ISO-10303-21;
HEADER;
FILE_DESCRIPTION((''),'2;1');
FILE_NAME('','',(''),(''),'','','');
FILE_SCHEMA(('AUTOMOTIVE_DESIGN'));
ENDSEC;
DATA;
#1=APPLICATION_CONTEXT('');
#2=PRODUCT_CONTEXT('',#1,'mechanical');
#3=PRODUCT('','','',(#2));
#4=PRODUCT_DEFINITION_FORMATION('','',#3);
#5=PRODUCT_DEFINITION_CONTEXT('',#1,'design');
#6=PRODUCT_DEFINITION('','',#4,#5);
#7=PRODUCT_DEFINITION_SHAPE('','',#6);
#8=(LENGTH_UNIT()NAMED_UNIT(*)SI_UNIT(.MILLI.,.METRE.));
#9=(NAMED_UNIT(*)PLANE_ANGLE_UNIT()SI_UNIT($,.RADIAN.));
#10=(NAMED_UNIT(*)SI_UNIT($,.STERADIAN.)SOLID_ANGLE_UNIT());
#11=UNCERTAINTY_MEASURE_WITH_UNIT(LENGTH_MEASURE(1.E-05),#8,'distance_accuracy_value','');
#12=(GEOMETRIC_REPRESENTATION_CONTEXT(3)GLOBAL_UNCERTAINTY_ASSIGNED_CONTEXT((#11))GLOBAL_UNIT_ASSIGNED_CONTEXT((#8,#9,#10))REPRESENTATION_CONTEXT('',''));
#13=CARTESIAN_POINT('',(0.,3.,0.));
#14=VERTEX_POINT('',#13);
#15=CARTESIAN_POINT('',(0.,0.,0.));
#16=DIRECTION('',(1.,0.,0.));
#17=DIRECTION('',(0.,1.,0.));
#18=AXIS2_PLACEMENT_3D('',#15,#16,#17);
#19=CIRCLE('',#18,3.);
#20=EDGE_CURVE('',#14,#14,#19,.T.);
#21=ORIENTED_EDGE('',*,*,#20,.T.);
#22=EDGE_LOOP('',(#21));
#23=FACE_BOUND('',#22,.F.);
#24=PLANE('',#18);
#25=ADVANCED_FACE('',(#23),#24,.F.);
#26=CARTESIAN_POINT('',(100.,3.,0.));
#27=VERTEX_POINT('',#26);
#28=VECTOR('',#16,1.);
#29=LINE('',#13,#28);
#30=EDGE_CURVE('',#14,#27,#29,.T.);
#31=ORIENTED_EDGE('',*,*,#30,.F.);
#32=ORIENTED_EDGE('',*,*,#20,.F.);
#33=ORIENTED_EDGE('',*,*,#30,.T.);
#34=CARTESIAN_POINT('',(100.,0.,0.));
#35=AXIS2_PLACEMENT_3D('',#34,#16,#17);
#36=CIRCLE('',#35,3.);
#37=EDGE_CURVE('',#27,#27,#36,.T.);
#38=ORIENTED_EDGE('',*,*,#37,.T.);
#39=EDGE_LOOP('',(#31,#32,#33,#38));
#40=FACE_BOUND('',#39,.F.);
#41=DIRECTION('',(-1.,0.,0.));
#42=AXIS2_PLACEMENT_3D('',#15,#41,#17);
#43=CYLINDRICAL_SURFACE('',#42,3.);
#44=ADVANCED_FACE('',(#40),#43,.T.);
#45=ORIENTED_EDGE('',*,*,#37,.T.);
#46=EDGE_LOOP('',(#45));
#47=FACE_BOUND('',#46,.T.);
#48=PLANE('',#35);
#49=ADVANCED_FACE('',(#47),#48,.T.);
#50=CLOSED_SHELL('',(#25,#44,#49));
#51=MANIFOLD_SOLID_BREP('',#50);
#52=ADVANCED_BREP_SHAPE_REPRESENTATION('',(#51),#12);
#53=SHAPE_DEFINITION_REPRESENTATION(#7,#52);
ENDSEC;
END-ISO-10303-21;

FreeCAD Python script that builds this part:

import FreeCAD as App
import Part
import Sketcher

V = App.Vector

doc = App.newDocument("Part")
body = doc.addObject("PartDesign::Body", "Body")

# Sketch on YZ plane
sketch1 = body.newObject("Sketcher::SketchObject", "Sketch")
sketch1.AttachmentSupport = (doc.getObject("YZ_Plane"), [""])
sketch1.MapMode = "FlatFace"
sketch1.addGeometry(Part.Circle(V(0, 0, 0), V(0, 0, 1), 3), False)
sketch1.addConstraint(Sketcher.Constraint("Coincident", 0, 3, -1, 1))
sketch1.addConstraint(Sketcher.Constraint("Diameter", 0, 6.0))
pad1 = body.newObject("PartDesign::Pad", "Pad")
pad1.Profile = sketch1
pad1.Length = 100

doc.recompute()
